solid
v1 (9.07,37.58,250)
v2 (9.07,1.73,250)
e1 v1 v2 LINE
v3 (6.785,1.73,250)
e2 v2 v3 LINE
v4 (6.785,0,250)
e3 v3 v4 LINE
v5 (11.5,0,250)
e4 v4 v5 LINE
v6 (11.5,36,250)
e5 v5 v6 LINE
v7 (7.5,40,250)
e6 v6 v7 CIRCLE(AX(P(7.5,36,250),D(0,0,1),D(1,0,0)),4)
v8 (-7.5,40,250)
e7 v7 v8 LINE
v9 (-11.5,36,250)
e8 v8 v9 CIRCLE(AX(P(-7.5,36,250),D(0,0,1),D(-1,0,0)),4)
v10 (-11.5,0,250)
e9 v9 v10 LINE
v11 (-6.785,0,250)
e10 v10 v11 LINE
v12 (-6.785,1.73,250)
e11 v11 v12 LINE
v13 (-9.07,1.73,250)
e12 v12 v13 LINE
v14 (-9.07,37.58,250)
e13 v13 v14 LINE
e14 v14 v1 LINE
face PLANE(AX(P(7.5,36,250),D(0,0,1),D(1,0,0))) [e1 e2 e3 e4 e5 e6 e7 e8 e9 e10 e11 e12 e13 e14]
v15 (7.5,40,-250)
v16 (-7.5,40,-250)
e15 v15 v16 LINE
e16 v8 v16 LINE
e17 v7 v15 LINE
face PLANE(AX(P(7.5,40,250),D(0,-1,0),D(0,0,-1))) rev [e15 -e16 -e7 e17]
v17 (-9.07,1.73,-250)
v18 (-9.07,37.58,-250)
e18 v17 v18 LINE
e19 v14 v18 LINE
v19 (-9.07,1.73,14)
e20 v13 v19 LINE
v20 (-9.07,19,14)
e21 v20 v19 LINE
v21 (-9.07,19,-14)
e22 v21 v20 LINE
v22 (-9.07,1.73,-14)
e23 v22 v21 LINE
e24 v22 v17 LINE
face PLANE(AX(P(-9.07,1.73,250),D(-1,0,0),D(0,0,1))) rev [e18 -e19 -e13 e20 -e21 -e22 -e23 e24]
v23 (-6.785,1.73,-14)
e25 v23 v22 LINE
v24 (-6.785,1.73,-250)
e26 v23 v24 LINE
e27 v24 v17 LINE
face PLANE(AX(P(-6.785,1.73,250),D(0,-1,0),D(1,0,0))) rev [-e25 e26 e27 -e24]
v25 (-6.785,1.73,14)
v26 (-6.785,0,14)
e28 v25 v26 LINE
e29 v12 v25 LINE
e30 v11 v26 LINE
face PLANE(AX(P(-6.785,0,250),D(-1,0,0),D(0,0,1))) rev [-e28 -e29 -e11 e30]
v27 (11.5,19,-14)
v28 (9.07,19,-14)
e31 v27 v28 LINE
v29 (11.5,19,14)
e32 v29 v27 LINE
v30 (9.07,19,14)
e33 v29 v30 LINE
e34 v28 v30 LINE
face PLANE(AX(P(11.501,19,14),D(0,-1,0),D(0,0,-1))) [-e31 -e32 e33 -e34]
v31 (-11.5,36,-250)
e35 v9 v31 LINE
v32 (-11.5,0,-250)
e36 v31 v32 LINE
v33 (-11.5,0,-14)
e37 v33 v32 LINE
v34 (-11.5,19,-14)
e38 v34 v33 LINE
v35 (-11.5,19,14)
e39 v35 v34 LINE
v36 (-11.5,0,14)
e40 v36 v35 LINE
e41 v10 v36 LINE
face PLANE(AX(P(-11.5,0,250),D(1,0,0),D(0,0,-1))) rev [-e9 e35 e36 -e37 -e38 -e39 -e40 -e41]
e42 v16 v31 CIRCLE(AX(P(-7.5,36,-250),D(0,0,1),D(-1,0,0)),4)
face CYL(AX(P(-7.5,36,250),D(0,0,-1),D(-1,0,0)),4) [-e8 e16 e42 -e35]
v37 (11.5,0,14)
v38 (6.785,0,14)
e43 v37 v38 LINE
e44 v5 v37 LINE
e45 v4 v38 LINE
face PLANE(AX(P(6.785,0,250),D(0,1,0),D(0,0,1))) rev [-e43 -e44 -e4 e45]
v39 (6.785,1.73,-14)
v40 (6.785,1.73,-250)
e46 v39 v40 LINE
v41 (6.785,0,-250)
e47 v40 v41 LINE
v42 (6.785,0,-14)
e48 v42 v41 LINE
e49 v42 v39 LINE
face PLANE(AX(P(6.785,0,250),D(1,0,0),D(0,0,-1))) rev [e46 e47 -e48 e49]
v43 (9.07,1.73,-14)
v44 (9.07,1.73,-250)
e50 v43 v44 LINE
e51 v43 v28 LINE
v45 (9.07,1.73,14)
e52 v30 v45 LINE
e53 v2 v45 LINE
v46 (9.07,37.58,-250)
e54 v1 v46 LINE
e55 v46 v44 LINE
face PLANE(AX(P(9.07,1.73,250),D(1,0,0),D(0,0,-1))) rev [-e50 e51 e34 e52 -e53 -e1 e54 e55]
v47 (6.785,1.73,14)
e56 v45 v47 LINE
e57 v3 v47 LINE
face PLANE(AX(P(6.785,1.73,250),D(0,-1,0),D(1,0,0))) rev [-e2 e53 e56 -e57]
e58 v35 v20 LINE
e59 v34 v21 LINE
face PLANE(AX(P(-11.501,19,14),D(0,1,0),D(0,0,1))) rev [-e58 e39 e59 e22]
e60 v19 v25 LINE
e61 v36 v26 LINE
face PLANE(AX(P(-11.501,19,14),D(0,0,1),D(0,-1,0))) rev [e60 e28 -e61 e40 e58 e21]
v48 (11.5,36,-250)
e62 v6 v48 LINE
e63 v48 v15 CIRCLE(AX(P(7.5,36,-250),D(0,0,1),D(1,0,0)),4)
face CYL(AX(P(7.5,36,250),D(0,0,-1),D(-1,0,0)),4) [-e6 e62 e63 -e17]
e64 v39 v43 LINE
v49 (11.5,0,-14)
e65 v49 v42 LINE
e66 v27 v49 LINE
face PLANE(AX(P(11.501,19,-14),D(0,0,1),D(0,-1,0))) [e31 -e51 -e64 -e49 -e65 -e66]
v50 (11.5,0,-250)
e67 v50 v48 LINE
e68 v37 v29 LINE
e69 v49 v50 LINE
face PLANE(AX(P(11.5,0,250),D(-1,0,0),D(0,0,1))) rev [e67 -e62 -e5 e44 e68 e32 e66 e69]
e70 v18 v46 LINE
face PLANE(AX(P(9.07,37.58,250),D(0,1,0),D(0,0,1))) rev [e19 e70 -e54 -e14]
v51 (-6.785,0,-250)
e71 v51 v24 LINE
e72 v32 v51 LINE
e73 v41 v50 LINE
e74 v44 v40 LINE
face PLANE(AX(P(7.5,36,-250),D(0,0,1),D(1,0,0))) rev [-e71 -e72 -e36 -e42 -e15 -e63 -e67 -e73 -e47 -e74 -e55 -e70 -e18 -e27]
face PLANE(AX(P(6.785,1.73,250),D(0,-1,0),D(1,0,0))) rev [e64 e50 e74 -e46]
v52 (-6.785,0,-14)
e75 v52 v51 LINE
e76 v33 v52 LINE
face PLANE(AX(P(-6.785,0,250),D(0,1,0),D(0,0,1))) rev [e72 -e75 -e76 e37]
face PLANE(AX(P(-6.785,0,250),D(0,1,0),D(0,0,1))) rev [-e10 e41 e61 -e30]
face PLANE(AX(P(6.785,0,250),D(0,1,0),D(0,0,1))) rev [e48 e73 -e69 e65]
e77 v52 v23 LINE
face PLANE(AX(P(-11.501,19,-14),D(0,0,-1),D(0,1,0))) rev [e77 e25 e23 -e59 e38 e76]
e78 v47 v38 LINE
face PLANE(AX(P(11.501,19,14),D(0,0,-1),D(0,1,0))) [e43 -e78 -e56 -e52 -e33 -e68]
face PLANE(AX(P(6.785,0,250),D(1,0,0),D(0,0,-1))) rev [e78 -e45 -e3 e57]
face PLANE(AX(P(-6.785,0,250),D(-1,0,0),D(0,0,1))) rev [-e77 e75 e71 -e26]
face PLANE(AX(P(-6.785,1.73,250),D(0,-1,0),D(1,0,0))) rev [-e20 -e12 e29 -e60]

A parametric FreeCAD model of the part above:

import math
import FreeCAD as App
import Part
import Sketcher

V = App.Vector
Q = App.Units.Quantity


def add_polygon(sketch, points):
    """Adds a closed chain of lines whose ends are joined by coincident constraints."""
    first, n = sketch.GeometryCount, len(points)
    for a, b in zip(points, points[1:] + points[:1]):
        sketch.addGeometry(Part.LineSegment(App.Vector(*a, 0), App.Vector(*b, 0)), False)
    for i in range(n):
        sketch.addConstraint(Sketcher.Constraint("Coincident", first + i, 2, first + (i + 1) % n, 1))

doc = App.newDocument("Part")
params = doc.addObject("Spreadsheet::Sheet", "Params")
for row, (alias, value) in enumerate([
    ("sketch1_radius", "4 mm"),
    ("sketch1_width", "15 mm"),
    ("sketch1_height", "36 mm"),
    ("sketch1_width2", "18.14 mm"),
    ("sketch1_height2", "1.73 mm"),
    ("pad1_length", "500 mm"),
    ("sketch2_width", "19 mm"),
    ("sketch2_height", "28 mm"),
    ("pocket1_length", "11.5 mm"),
    ("sketch3_width", "19 mm"),
    ("sketch3_height", "28 mm"),
    ("pocket2_length", "11.5 mm"),
], start=1):
    params.set(f"A{row}", alias)
    params.set(f"B{row}", "=" + value)
    params.setAlias(f"B{row}", alias)

body = doc.addObject("PartDesign::Body", "Body")

sketch1 = body.newObject("Sketcher::SketchObject", "Sketch")
sketch1.AttachmentSupport = (doc.getObject("XY_Plane"), [""])
sketch1.MapMode = "FlatFace"
sketch1.addGeometry([
    Part.LineSegment(V(6.785, 1.73, 0), V(6.785, 0, 0)),
    Part.LineSegment(V(6.785, 0, 0), V(11.5, 0, 0)),
    Part.LineSegment(V(11.5, 0, 0), V(11.5, 36, 0)),
    Part.ArcOfCircle(Part.Circle(V(7.5, 36, 0), V(0, 0, 1), 4), math.radians(0), math.radians(90)),
    Part.LineSegment(V(7.5, 40, 0), V(-7.5, 40, 0)),
    Part.ArcOfCircle(Part.Circle(V(-7.5, 36, 0), V(0, 0, 1), 4), math.radians(90), math.radians(180)),
    Part.LineSegment(V(-11.5, 36, 0), V(-11.5, 0, 0)),
    Part.LineSegment(V(-11.5, 0, 0), V(-6.785, 0, 0)),
    Part.LineSegment(V(-6.785, 0, 0), V(-6.785, 1.73, 0)),
    Part.LineSegment(V(-6.785, 1.73, 0), V(-9.07, 1.73, 0)),
    Part.LineSegment(V(-9.07, 1.73, 0), V(-9.07, 37.58, 0)),
    Part.LineSegment(V(-9.07, 37.58, 0), V(9.07, 37.58, 0)),
    Part.LineSegment(V(9.07, 37.58, 0), V(9.07, 1.73, 0)),
    Part.LineSegment(V(9.07, 1.73, 0), V(6.785, 1.73, 0)),
], False)
sketch1.addConstraint([
    Sketcher.Constraint("Coincident", 0, 2, 1, 1),
    Sketcher.Constraint("Coincident", 1, 2, 2, 1),
    Sketcher.Constraint("Tangent", 2, 2, 3, 1),
    Sketcher.Constraint("Tangent", 3, 2, 4, 1),
    Sketcher.Constraint("Tangent", 4, 2, 5, 1),
    Sketcher.Constraint("Tangent", 5, 2, 6, 1),
    Sketcher.Constraint("Coincident", 6, 2, 7, 1),
    Sketcher.Constraint("Coincident", 7, 2, 8, 1),
    Sketcher.Constraint("Coincident", 8, 2, 9, 1),
    Sketcher.Constraint("Coincident", 9, 2, 10, 1),
    Sketcher.Constraint("Coincident", 10, 2, 11, 1),
    Sketcher.Constraint("Coincident", 11, 2, 12, 1),
    Sketcher.Constraint("Coincident", 12, 2, 13, 1),
    Sketcher.Constraint("Coincident", 13, 2, 0, 1),
    Sketcher.Constraint("Vertical", 0),
    Sketcher.Constraint("Horizontal", 1),
    Sketcher.Constraint("Vertical", 2),
    Sketcher.Constraint("Horizontal", 4),
    Sketcher.Constraint("Vertical", 6),
    Sketcher.Constraint("Horizontal", 7),
    Sketcher.Constraint("Vertical", 8),
    Sketcher.Constraint("Horizontal", 9),
    Sketcher.Constraint("Vertical", 10),
    Sketcher.Constraint("Horizontal", 11),
    Sketcher.Constraint("Vertical", 12),
    Sketcher.Constraint("Horizontal", 13),
    Sketcher.Constraint("Equal", 3, 5),
    Sketcher.Constraint("Symmetric", 1, 2, 6, 2, -1, 1),
    Sketcher.Constraint("Symmetric", 0, 2, 7, 2, -2),
    Sketcher.Constraint("Symmetric", 9, 2, 12, 2, -2),
    Sketcher.Constraint("Radius", 3, Q("4 mm")),
    Sketcher.Constraint("DistanceX", 4, 2, 4, 1, Q("15 mm")),
    Sketcher.Constraint("DistanceY", 2, 1, 2, 2, Q("36 mm")),
    Sketcher.Constraint("DistanceX", 11, 1, 11, 2, Q("18.14 mm")),
    Sketcher.Constraint("DistanceY", 0, 2, 0, 1, Q("1.73 mm")),
    Sketcher.Constraint("DistanceY", 10, 1, 10, 2, Q("35.85 mm")),
    Sketcher.Constraint("DistanceX", 1, 1, 1, 2, Q("4.715 mm")),
])
sketch1.setExpression("Constraints[30]", "Params.sketch1_radius")
sketch1.setExpression("Constraints[31]", "Params.sketch1_width")
sketch1.setExpression("Constraints[32]", "Params.sketch1_height")
sketch1.setExpression("Constraints[33]", "Params.sketch1_width2")
sketch1.setExpression("Constraints[34]", "Params.sketch1_height2")
pad1 = body.newObject("PartDesign::Pad", "Pad")
pad1.Profile = sketch1
pad1.setExpression("Length", "Params.pad1_length")
pad1.Midplane = True

sketch2 = body.newObject("Sketcher::SketchObject", "Sketch001")
sketch2.AttachmentSupport = (doc.getObject("YZ_Plane"), [""])
sketch2.MapMode = "FlatFace"
add_polygon(sketch2, [(19, 14), (0, 14), (0, -14), (19, -14)])
sketch2.addConstraint([
    Sketcher.Constraint("Horizontal", 0),
    Sketcher.Constraint("Vertical", 1),
    Sketcher.Constraint("Horizontal", 2),
    Sketcher.Constraint("Vertical", 3),
    Sketcher.Constraint("Symmetric", 0, 2, 1, 2, -1, 1),
    Sketcher.Constraint("DistanceX", 0, 2, 0, 1, Q("19 mm")),
    Sketcher.Constraint("DistanceY", 1, 2, 1, 1, Q("28 mm")),
])
sketch2.setExpression("Constraints[9]", "Params.sketch2_width")
sketch2.setExpression("Constraints[10]", "Params.sketch2_height")
pocket1 = body.newObject("PartDesign::Pocket", "Pocket")
pocket1.Profile = sketch2
pocket1.setExpression("Length", "Params.pocket1_length")

sketch3 = body.newObject("Sketcher::SketchObject", "Sketch002")
sketch3.AttachmentSupport = (doc.getObject("YZ_Plane"), [""])
sketch3.MapMode = "FlatFace"
add_polygon(sketch3, [(19, 14), (0, 14), (0, -14), (19, -14)])
sketch3.addConstraint([
    Sketcher.Constraint("Horizontal", 0),
    Sketcher.Constraint("Vertical", 1),
    Sketcher.Constraint("Horizontal", 2),
    Sketcher.Constraint("Vertical", 3),
    Sketcher.Constraint("Symmetric", 0, 2, 1, 2, -1, 1),
    Sketcher.Constraint("DistanceX", 0, 2, 0, 1, Q("19 mm")),
    Sketcher.Constraint("DistanceY", 1, 2, 1, 1, Q("28 mm")),
])
sketch3.setExpression("Constraints[9]", "Params.sketch3_width")
sketch3.setExpression("Constraints[10]", "Params.sketch3_height")
pocket2 = body.newObject("PartDesign::Pocket", "Pocket001")
pocket2.Profile = sketch3
pocket2.setExpression("Length", "Params.pocket2_length")
pocket2.Reversed = True

doc.recompute()
